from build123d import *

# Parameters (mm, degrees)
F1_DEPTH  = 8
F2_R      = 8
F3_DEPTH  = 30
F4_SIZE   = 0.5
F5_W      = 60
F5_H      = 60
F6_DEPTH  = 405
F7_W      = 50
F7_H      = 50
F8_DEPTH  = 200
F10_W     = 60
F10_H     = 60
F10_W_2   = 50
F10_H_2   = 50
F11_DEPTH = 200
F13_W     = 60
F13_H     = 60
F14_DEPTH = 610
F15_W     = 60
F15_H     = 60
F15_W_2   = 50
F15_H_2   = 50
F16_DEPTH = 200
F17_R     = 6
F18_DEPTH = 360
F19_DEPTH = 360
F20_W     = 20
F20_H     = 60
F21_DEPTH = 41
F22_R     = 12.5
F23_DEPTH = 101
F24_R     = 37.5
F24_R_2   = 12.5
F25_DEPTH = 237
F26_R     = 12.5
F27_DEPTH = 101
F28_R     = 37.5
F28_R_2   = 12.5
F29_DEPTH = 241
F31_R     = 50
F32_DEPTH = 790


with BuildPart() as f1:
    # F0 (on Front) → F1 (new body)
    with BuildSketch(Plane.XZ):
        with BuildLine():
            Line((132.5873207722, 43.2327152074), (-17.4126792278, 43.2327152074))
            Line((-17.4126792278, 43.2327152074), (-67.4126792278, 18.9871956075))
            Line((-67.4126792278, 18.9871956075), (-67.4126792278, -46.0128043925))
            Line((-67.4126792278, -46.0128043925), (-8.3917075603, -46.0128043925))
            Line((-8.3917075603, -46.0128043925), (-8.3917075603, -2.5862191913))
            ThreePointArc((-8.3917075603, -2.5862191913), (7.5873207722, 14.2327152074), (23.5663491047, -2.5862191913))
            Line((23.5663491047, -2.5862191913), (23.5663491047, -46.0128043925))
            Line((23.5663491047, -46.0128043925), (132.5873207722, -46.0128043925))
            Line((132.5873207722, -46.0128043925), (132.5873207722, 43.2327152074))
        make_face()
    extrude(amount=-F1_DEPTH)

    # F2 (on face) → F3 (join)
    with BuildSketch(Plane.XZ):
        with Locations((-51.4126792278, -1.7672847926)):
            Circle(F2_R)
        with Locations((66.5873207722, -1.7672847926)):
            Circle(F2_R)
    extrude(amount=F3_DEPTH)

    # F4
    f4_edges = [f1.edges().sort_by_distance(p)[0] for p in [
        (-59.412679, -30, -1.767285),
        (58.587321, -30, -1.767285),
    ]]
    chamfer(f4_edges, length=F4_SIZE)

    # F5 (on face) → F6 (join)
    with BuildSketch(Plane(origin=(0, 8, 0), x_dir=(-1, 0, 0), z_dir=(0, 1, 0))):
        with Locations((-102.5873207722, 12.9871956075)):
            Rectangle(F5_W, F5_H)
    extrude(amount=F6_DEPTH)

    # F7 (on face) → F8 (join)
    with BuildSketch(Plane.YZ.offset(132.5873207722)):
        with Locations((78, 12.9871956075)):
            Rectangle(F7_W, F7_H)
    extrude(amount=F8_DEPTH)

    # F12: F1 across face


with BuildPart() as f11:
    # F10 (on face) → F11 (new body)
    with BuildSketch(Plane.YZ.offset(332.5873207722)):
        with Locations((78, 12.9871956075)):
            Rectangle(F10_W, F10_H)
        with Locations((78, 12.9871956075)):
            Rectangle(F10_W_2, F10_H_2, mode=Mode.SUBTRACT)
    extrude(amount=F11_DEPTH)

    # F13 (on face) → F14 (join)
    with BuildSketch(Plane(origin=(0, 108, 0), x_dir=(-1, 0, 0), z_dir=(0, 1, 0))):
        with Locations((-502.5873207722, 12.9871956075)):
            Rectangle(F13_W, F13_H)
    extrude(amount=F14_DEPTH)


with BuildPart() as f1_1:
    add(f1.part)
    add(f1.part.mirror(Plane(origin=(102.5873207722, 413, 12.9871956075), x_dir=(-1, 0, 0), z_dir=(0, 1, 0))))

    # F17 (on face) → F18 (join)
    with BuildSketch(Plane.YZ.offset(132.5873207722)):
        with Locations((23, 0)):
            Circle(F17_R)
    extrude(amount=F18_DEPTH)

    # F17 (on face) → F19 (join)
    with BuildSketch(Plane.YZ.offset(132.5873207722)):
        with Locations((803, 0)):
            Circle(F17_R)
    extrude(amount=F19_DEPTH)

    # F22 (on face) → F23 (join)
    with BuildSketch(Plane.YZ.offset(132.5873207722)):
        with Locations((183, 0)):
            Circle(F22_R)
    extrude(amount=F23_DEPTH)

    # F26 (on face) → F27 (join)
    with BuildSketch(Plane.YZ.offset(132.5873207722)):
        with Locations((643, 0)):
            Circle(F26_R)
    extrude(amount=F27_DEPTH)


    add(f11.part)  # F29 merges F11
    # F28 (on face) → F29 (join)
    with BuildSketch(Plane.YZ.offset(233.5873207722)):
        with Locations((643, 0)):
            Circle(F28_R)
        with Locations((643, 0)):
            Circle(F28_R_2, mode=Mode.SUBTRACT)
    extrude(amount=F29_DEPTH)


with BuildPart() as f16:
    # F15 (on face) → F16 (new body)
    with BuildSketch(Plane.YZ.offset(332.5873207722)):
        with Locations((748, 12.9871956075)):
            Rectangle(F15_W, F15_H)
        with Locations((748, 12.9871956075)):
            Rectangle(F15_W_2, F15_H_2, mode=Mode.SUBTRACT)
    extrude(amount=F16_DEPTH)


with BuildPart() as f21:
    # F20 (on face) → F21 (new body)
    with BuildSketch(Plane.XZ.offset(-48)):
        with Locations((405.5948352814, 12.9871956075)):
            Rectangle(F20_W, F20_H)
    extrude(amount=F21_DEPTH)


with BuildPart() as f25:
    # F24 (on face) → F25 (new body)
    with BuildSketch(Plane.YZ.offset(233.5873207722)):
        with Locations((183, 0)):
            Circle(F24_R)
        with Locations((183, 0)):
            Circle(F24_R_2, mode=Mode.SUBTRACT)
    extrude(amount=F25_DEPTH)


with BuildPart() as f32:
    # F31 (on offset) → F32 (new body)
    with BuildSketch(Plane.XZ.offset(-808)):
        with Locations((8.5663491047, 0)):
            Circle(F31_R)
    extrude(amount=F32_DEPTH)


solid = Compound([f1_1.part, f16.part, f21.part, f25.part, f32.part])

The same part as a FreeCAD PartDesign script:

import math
import FreeCAD as App
import Part
import Sketcher

V = App.Vector
Q = App.Units.Quantity


def edges_at(feature, points):
    """Names of the edges that pass closest to the given points."""
    edges = feature.Shape.Edges
    near = lambda p: min(range(len(edges)), key=lambda i: edges[i].distToShape(Part.Vertex(*p))[0])
    return sorted({f"Edge{near(p) + 1}" for p in points})


def add_polygon(sketch, points):
    """Adds a closed chain of lines whose ends are joined by coincident constraints."""
    first, n = sketch.GeometryCount, len(points)
    for a, b in zip(points, points[1:] + points[:1]):
        sketch.addGeometry(Part.LineSegment(App.Vector(*a, 0), App.Vector(*b, 0)), False)
    for i in range(n):
        sketch.addConstraint(Sketcher.Constraint("Coincident", first + i, 2, first + (i + 1) % n, 1))

doc = App.newDocument("Part")
body = doc.addObject("PartDesign::Body", "Body")

# Sketch on XZ plane
sketch1 = body.newObject("Sketcher::SketchObject", "Sketch")
sketch1.AttachmentSupport = (doc.getObject("XZ_Plane"), [""])
sketch1.MapMode = "FlatFace"
sketch1.addGeometry([
    Part.LineSegment(V(133, 43, 0), V(-17, 43, 0)),  # 0
    Part.LineSegment(V(-17, 43, 0), V(-67, 19, 0)),  # 1
    Part.LineSegment(V(-67, 19, 0), V(-67, -46, 0)),  # 2
    Part.LineSegment(V(-67, -46, 0), V(-8, -46, 0)),  # 3
    Part.LineSegment(V(-8, -46, 0), V(-8, -3, 0)),  # 4
    Part.ArcOfCircle(Part.Circle(V(8, -2, 0), V(0, 0, 1), 16), math.radians(-3), math.radians(183)),  # 5
    Part.LineSegment(V(24, -3, 0), V(24, -46, 0)),  # 6
    Part.LineSegment(V(24, -46, 0), V(133, -46, 0)),  # 7
    Part.LineSegment(V(133, -46, 0), V(133, 43, 0)),  # 8
], False)
sketch1.addConstraint([
    Sketcher.Constraint("Coincident", 0, 2, 1, 1),
    Sketcher.Constraint("Coincident", 1, 2, 2, 1),
    Sketcher.Constraint("Coincident", 2, 2, 3, 1),
    Sketcher.Constraint("Coincident", 3, 2, 4, 1),
    Sketcher.Constraint("Coincident", 4, 2, 5, 2),
    Sketcher.Constraint("Coincident", 5, 1, 6, 1),
    Sketcher.Constraint("Coincident", 6, 2, 7, 1),
    Sketcher.Constraint("Coincident", 7, 2, 8, 1),
    Sketcher.Constraint("Coincident", 8, 2, 0, 1),
    Sketcher.Constraint("Horizontal", 0),
    Sketcher.Constraint("Vertical", 2),
    Sketcher.Constraint("Horizontal", 3),
    Sketcher.Constraint("Vertical", 4),
    Sketcher.Constraint("Vertical", 6),
    Sketcher.Constraint("Horizontal", 7),
    Sketcher.Constraint("Vertical", 8),
    Sketcher.Constraint("Horizontal", 4, 2, 5, 1),
    Sketcher.Constraint("Horizontal", 3, 2, 6, 2),
    Sketcher.Constraint("Radius", 5, Q("16 mm")),
    Sketcher.Constraint("DistanceX", 0, 2, 0, 1, Q("150 mm")),
    Sketcher.Constraint("DistanceY", 2, 2, 2, 1, Q("65 mm")),
    Sketcher.Constraint("DistanceX", 0, 2, 5, 3, Q("25 mm")),
    Sketcher.Constraint("DistanceY", 5, 3, 0, 2, Q("45 mm")),
    Sketcher.Constraint("DistanceX", 1, 2, 0, 2, Q("50 mm")),
    Sketcher.Constraint("DistanceX", 3, 1, 3, 2, Q("59.020972 mm")),
    Sketcher.Constraint("DistanceY", 8, 1, 8, 2, Q("89.24552 mm")),
    Sketcher.Constraint("DistanceX", -1, 1, 5, 3, Q("7.587321 mm")),
    Sketcher.Constraint("DistanceY", 4, 2, -1, 1, Q("2.586219 mm")),
])
pad1 = body.newObject("PartDesign::Pad", "Pad")
pad1.Profile = sketch1
pad1.Length = 8
pad1.Reversed = True

# Sketch on XZ plane
sketch2 = body.newObject("Sketcher::SketchObject", "Sketch001")
sketch2.AttachmentSupport = (doc.getObject("XZ_Plane"), [""])
sketch2.MapMode = "FlatFace"
sketch2.addGeometry([
    Part.Circle(V(-51, -2, 0), V(0, 0, 1), 8),
    Part.Circle(V(67, -2, 0), V(0, 0, 1), 8),
], False)
sketch2.addConstraint([
    Sketcher.Constraint("Equal", 0, 1),
    Sketcher.Constraint("Horizontal", 0, 3, 1, 3),
    Sketcher.Constraint("Diameter", 0, Q("16 mm")),
    Sketcher.Constraint("DistanceX", 0, 3, 1, 3, Q("118 mm")),
    Sketcher.Constraint("DistanceX", 0, 3, -1, 1, Q("51.412679 mm")),
    Sketcher.Constraint("DistanceY", 0, 3, -1, 1, Q("1.767285 mm")),
])
pad2 = body.newObject("PartDesign::Pad", "Pad001")
pad2.Profile = sketch2
pad2.Length = 30
doc.recompute()

chamfer = body.newObject("PartDesign::Chamfer", "Chamfer")
chamfer.Base = (pad2, edges_at(pad2, [(-59.413, -30, -1.767), (58.587, -30, -1.767)]))
chamfer.Size = 0.5

# Sketch on XZ plane
sketch3 = body.newObject("Sketcher::SketchObject", "Sketch002")
sketch3.AttachmentSupport = (doc.getObject("XZ_Plane"), [""])
sketch3.MapMode = "FlatFace"
sketch3.AttachmentOffset = App.Placement(V(0, 0, -8), App.Rotation())
add_polygon(sketch3, [(133, 43), (133, -17), (73, -17), (73, 43)])  # lines 0-3
sketch3.addConstraint([
    Sketcher.Constraint("Vertical", 0),
    Sketcher.Constraint("Horizontal", 1),
    Sketcher.Constraint("Vertical", 2),
    Sketcher.Constraint("Horizontal", 3),
    Sketcher.Constraint("Equal", 3, 0),
    Sketcher.Constraint("DistanceX", 1, 2, 1, 1, Q("60 mm")),
    Sketcher.Constraint("DistanceX", -1, 1, 0, 2, Q("132.587321 mm")),
    Sketcher.Constraint("DistanceY", 0, 2, -1, 1, Q("17.012804 mm")),
])
pad3 = body.newObject("PartDesign::Pad", "Pad002")
pad3.Profile = sketch3
pad3.Length = 405
pad3.Reversed = True

# Sketch on YZ plane
sketch4 = body.newObject("Sketcher::SketchObject", "Sketch003")
sketch4.AttachmentSupport = (doc.getObject("YZ_Plane"), [""])
sketch4.MapMode = "FlatFace"
sketch4.AttachmentOffset = App.Placement(V(0, 0, 132.587321), App.Rotation())
add_polygon(sketch4, [(53, 38), (53, -12), (103, -12), (103, 38)])  # lines 0-3
sketch4.addConstraint([
    Sketcher.Constraint("Vertical", 0),
    Sketcher.Constraint("Horizontal", 1),
    Sketcher.Constraint("Vertical", 2),
    Sketcher.Constraint("Horizontal", 3),
    Sketcher.Constraint("Equal", 3, 0),
    Sketcher.Constraint("DistanceX", 1, 1, 1, 2, Q("50 mm")),
    Sketcher.Constraint("DistanceX", -1, 1, 0, 2, Q("53 mm")),
    Sketcher.Constraint("DistanceY", 0, 2, -1, 1, Q("12.012804 mm")),
])
pad4 = body.newObject("PartDesign::Pad", "Pad003")
pad4.Profile = sketch4
pad4.Length = 200
body2 = doc.addObject("PartDesign::Body", "Body001")

# Sketch on YZ plane
sketch5 = body2.newObject("Sketcher::SketchObject", "Sketch004")
sketch5.AttachmentSupport = (doc.getObject("YZ_Plane001"), [""])
sketch5.MapMode = "FlatFace"
sketch5.AttachmentOffset = App.Placement(V(0, 0, 332.587321), App.Rotation())
add_polygon(sketch5, [(48, 43), (48, -17), (108, -17), (108, 43)])  # lines 0-3
add_polygon(sketch5, [(103, -12), (53, -12), (53, 38), (103, 38)])  # lines 4-7
sketch5.addConstraint([
    Sketcher.Constraint("Vertical", 0),
    Sketcher.Constraint("Horizontal", 1),
    Sketcher.Constraint("Vertical", 2),
    Sketcher.Constraint("Horizontal", 3),
    Sketcher.Constraint("Horizontal", 4),
    Sketcher.Constraint("Vertical", 5),
    Sketcher.Constraint("Horizontal", 6),
    Sketcher.Constraint("Vertical", 7),
    Sketcher.Constraint("Equal", 3, 0),
    Sketcher.Constraint("Equal", 6, 5),
    Sketcher.Constraint("DistanceX", 1, 1, 1, 2, Q("60 mm")),
    Sketcher.Constraint("DistanceX", 4, 2, 4, 1, Q("50 mm")),
    Sketcher.Constraint("DistanceX", -1, 1, 0, 2, Q("48 mm")),
    Sketcher.Constraint("DistanceX", -1, 1, 4, 2, Q("53 mm")),
    Sketcher.Constraint("DistanceY", 0, 2, 4, 2, Q("5 mm")),
    Sketcher.Constraint("DistanceY", 0, 2, -1, 1, Q("17.012804 mm")),
])
pad5 = body2.newObject("PartDesign::Pad", "Pad004")
pad5.Profile = sketch5
pad5.Length = 200

# Sketch on XZ plane
sketch6 = body2.newObject("Sketcher::SketchObject", "Sketch005")
sketch6.AttachmentSupport = (doc.getObject("XZ_Plane001"), [""])
sketch6.MapMode = "FlatFace"
sketch6.AttachmentOffset = App.Placement(V(0, 0, -108), App.Rotation())
add_polygon(sketch6, [(533, 43), (533, -17), (473, -17), (473, 43)])  # lines 0-3
sketch6.addConstraint([
    Sketcher.Constraint("Vertical", 0),
    Sketcher.Constraint("Horizontal", 1),
    Sketcher.Constraint("Vertical", 2),
    Sketcher.Constraint("Horizontal", 3),
    Sketcher.Constraint("Equal", 3, 0),
    Sketcher.Constraint("DistanceX", 1, 2, 1, 1, Q("60 mm")),
    Sketcher.Constraint("DistanceX", -1, 1, 0, 2, Q("532.587321 mm")),
    Sketcher.Constraint("DistanceY", 0, 2, -1, 1, Q("17.012804 mm")),
])
pad6 = body2.newObject("PartDesign::Pad", "Pad005")
pad6.Profile = sketch6
pad6.Length = 610
pad6.Reversed = True
body3 = doc.addObject("PartDesign::Body", "Body002")
body3.AllowCompound = True
doc.recompute()

body3.BaseFeature = body
doc.recompute()

mirroring = doc.addObject("Part::Mirroring", "Mirroring")
mirroring.Source = body
mirroring.Base = V(102.587321, 413, 12.987196)
mirroring.Normal = V(0, 1, 0)
body4 = doc.addObject("PartDesign::Body", "Body003")
body4.BaseFeature = mirroring
boolean = body3.newObject("PartDesign::Boolean", "Boolean")
boolean.Type = "Fuse"
boolean.addObjects([body4])
doc.recompute()

# Sketch on YZ plane
sketch7 = body3.newObject("Sketcher::SketchObject", "Sketch006")
sketch7.AttachmentSupport = (doc.getObject("YZ_Plane002"), [""])
sketch7.MapMode = "FlatFace"
sketch7.AttachmentOffset = App.Placement(V(0, 0, 132.587321), App.Rotation())
sketch7.addGeometry(Part.Circle(V(23, 0, 0), V(0, 0, 1), 6), False)
sketch7.addConstraint([
    Sketcher.Constraint("PointOnObject", 0, 3, -1),
    Sketcher.Constraint("Diameter", 0, Q("12 mm")),
    Sketcher.Constraint("DistanceX", -1, 1, 0, 3, Q("23 mm")),
])
pad7 = body3.newObject("PartDesign::Pad", "Pad006")
pad7.Profile = sketch7
pad7.Length = 360

# Sketch on YZ plane
sketch8 = body3.newObject("Sketcher::SketchObject", "Sketch007")
sketch8.AttachmentSupport = (doc.getObject("YZ_Plane002"), [""])
sketch8.MapMode = "FlatFace"
sketch8.AttachmentOffset = App.Placement(V(0, 0, 132.587321), App.Rotation())
sketch8.addGeometry(Part.Circle(V(803, 0, 0), V(0, 0, 1), 6), False)
sketch8.addConstraint([
    Sketcher.Constraint("PointOnObject", 0, 3, -1),
    Sketcher.Constraint("Diameter", 0, Q("12 mm")),
    Sketcher.Constraint("DistanceX", -1, 1, 0, 3, Q("803 mm")),
])
pad8 = body3.newObject("PartDesign::Pad", "Pad007")
pad8.Profile = sketch8
pad8.Length = 360

# Sketch on YZ plane
sketch9 = body3.newObject("Sketcher::SketchObject", "Sketch008")
sketch9.AttachmentSupport = (doc.getObject("YZ_Plane002"), [""])
sketch9.MapMode = "FlatFace"
sketch9.AttachmentOffset = App.Placement(V(0, 0, 132.587321), App.Rotation())
sketch9.addGeometry(Part.Circle(V(183, 0, 0), V(0, 0, 1), 12), False)
sketch9.addConstraint([
    Sketcher.Constraint("PointOnObject", 0, 3, -1),
    Sketcher.Constraint("Diameter", 0, Q("25 mm")),
    Sketcher.Constraint("DistanceX", -1, 1, 0, 3, Q("183 mm")),
])
pad9 = body3.newObject("PartDesign::Pad", "Pad008")
pad9.Profile = sketch9
pad9.Length = 101

# Sketch on YZ plane
sketch10 = body3.newObject("Sketcher::SketchObject", "Sketch009")
sketch10.AttachmentSupport = (doc.getObject("YZ_Plane002"), [""])
sketch10.MapMode = "FlatFace"
sketch10.AttachmentOffset = App.Placement(V(0, 0, 132.587321), App.Rotation())
sketch10.addGeometry(Part.Circle(V(643, 0, 0), V(0, 0, 1), 12), False)
sketch10.addConstraint([
    Sketcher.Constraint("PointOnObject", 0, 3, -1),
    Sketcher.Constraint("Diameter", 0, Q("25 mm")),
    Sketcher.Constraint("DistanceX", -1, 1, 0, 3, Q("643 mm")),
])
pad10 = body3.newObject("PartDesign::Pad", "Pad009")
pad10.Profile = sketch10
pad10.Length = 101
doc.recompute()

boolean2 = body3.newObject("PartDesign::Boolean", "Boolean001")
boolean2.Type = "Fuse"
boolean2.addObjects([body2])

# Sketch on YZ plane
sketch11 = body3.newObject("Sketcher::SketchObject", "Sketch010")
sketch11.AttachmentSupport = (doc.getObject("YZ_Plane002"), [""])
sketch11.MapMode = "FlatFace"
sketch11.AttachmentOffset = App.Placement(V(0, 0, 233.587321), App.Rotation())
sketch11.addGeometry([
    Part.Circle(V(643, 0, 0), V(0, 0, 1), 38),
    Part.Circle(V(643, 0, 0), V(0, 0, 1), 12),
], False)
sketch11.addConstraint([
    Sketcher.Constraint("Coincident", 1, 3, 0, 3),
    Sketcher.Constraint("PointOnObject", 0, 3, -1),
    Sketcher.Constraint("Diameter", 0, Q("75 mm")),
    Sketcher.Constraint("Diameter", 1, Q("25 mm")),
    Sketcher.Constraint("DistanceX", -1, 1, 0, 3, Q("643 mm")),
])
pad11 = body3.newObject("PartDesign::Pad", "Pad010")
pad11.Profile = sketch11
pad11.Length = 241
body5 = doc.addObject("PartDesign::Body", "Body004")

# Sketch on YZ plane
sketch12 = body5.newObject("Sketcher::SketchObject", "Sketch011")
sketch12.AttachmentSupport = (doc.getObject("YZ_Plane004"), [""])
sketch12.MapMode = "FlatFace"
sketch12.AttachmentOffset = App.Placement(V(0, 0, 332.587321), App.Rotation())
add_polygon(sketch12, [(718, 43), (718, -17), (778, -17), (778, 43)])  # lines 0-3
add_polygon(sketch12, [(773, -12), (723, -12), (723, 38), (773, 38)])  # lines 4-7
sketch12.addConstraint([
    Sketcher.Constraint("Vertical", 0),
    Sketcher.Constraint("Horizontal", 1),
    Sketcher.Constraint("Vertical", 2),
    Sketcher.Constraint("Horizontal", 3),
    Sketcher.Constraint("Horizontal", 4),
    Sketcher.Constraint("Vertical", 5),
    Sketcher.Constraint("Horizontal", 6),
    Sketcher.Constraint("Vertical", 7),
    Sketcher.Constraint("Equal", 3, 0),
    Sketcher.Constraint("Equal", 6, 5),
    Sketcher.Constraint("DistanceX", 1, 1, 1, 2, Q("60 mm")),
    Sketcher.Constraint("DistanceX", 4, 2, 4, 1, Q("50 mm")),
    Sketcher.Constraint("DistanceX", -1, 1, 0, 2, Q("718 mm")),
    Sketcher.Constraint("DistanceX", -1, 1, 4, 2, Q("723 mm")),
    Sketcher.Constraint("DistanceY", 0, 2, 4, 2, Q("5 mm")),
    Sketcher.Constraint("DistanceY", 0, 2, -1, 1, Q("17.012804 mm")),
])
pad12 = body5.newObject("PartDesign::Pad", "Pad011")
pad12.Profile = sketch12
pad12.Length = 200
body6 = doc.addObject("PartDesign::Body", "Body005")

# Sketch on XZ plane
sketch13 = body6.newObject("Sketcher::SketchObject", "Sketch012")
sketch13.AttachmentSupport = (doc.getObject("XZ_Plane005"), [""])
sketch13.MapMode = "FlatFace"
sketch13.AttachmentOffset = App.Placement(V(0, 0, -48), App.Rotation())
add_polygon(sketch13, [(396, 43), (396, -17), (416, -17), (416, 43)])  # lines 0-3
sketch13.addConstraint([
    Sketcher.Constraint("Vertical", 0),
    Sketcher.Constraint("Horizontal", 1),
    Sketcher.Constraint("Vertical", 2),
    Sketcher.Constraint("Horizontal", 3),
    Sketcher.Constraint("DistanceX", 1, 1, 1, 2, Q("20 mm")),
    Sketcher.Constraint("DistanceY", 0, 2, 0, 1, Q("60 mm")),
    Sketcher.Constraint("DistanceX", -1, 1, 0, 2, Q("395.594835 mm")),
    Sketcher.Constraint("DistanceY", 0, 2, -1, 1, Q("17.012804 mm")),
])
pad13 = body6.newObject("PartDesign::Pad", "Pad012")
pad13.Profile = sketch13
pad13.Length = 41
body7 = doc.addObject("PartDesign::Body", "Body006")

# Sketch on YZ plane
sketch14 = body7.newObject("Sketcher::SketchObject", "Sketch013")
sketch14.AttachmentSupport = (doc.getObject("YZ_Plane006"), [""])
sketch14.MapMode = "FlatFace"
sketch14.AttachmentOffset = App.Placement(V(0, 0, 233.587321), App.Rotation())
sketch14.addGeometry([
    Part.Circle(V(183, 0, 0), V(0, 0, 1), 38),
    Part.Circle(V(183, 0, 0), V(0, 0, 1), 12),
], False)
sketch14.addConstraint([
    Sketcher.Constraint("Coincident", 1, 3, 0, 3),
    Sketcher.Constraint("PointOnObject", 0, 3, -1),
    Sketcher.Constraint("Diameter", 0, Q("75 mm")),
    Sketcher.Constraint("Diameter", 1, Q("25 mm")),
    Sketcher.Constraint("DistanceX", -1, 1, 0, 3, Q("183 mm")),
])
pad14 = body7.newObject("PartDesign::Pad", "Pad013")
pad14.Profile = sketch14
pad14.Length = 237
body8 = doc.addObject("PartDesign::Body", "Body007")

# Sketch on XZ plane
sketch15 = body8.newObject("Sketcher::SketchObject", "Sketch014")
sketch15.AttachmentSupport = (doc.getObject("XZ_Plane007"), [""])
sketch15.MapMode = "FlatFace"
sketch15.AttachmentOffset = App.Placement(V(0, 0, -808), App.Rotation())
sketch15.addGeometry(Part.Circle(V(9, 0, 0), V(0, 0, 1), 50), False)
sketch15.addConstraint([
    Sketcher.Constraint("PointOnObject", 0, 3, -1),
    Sketcher.Constraint("Diameter", 0, Q("100 mm")),
    Sketcher.Constraint("DistanceX", -1, 1, 0, 3, Q("8.566349 mm")),
])
pad15 = body8.newObject("PartDesign::Pad", "Pad014")
pad15.Profile = sketch15
pad15.Length = 790
mirroring.Visibility = False

doc.recompute()
